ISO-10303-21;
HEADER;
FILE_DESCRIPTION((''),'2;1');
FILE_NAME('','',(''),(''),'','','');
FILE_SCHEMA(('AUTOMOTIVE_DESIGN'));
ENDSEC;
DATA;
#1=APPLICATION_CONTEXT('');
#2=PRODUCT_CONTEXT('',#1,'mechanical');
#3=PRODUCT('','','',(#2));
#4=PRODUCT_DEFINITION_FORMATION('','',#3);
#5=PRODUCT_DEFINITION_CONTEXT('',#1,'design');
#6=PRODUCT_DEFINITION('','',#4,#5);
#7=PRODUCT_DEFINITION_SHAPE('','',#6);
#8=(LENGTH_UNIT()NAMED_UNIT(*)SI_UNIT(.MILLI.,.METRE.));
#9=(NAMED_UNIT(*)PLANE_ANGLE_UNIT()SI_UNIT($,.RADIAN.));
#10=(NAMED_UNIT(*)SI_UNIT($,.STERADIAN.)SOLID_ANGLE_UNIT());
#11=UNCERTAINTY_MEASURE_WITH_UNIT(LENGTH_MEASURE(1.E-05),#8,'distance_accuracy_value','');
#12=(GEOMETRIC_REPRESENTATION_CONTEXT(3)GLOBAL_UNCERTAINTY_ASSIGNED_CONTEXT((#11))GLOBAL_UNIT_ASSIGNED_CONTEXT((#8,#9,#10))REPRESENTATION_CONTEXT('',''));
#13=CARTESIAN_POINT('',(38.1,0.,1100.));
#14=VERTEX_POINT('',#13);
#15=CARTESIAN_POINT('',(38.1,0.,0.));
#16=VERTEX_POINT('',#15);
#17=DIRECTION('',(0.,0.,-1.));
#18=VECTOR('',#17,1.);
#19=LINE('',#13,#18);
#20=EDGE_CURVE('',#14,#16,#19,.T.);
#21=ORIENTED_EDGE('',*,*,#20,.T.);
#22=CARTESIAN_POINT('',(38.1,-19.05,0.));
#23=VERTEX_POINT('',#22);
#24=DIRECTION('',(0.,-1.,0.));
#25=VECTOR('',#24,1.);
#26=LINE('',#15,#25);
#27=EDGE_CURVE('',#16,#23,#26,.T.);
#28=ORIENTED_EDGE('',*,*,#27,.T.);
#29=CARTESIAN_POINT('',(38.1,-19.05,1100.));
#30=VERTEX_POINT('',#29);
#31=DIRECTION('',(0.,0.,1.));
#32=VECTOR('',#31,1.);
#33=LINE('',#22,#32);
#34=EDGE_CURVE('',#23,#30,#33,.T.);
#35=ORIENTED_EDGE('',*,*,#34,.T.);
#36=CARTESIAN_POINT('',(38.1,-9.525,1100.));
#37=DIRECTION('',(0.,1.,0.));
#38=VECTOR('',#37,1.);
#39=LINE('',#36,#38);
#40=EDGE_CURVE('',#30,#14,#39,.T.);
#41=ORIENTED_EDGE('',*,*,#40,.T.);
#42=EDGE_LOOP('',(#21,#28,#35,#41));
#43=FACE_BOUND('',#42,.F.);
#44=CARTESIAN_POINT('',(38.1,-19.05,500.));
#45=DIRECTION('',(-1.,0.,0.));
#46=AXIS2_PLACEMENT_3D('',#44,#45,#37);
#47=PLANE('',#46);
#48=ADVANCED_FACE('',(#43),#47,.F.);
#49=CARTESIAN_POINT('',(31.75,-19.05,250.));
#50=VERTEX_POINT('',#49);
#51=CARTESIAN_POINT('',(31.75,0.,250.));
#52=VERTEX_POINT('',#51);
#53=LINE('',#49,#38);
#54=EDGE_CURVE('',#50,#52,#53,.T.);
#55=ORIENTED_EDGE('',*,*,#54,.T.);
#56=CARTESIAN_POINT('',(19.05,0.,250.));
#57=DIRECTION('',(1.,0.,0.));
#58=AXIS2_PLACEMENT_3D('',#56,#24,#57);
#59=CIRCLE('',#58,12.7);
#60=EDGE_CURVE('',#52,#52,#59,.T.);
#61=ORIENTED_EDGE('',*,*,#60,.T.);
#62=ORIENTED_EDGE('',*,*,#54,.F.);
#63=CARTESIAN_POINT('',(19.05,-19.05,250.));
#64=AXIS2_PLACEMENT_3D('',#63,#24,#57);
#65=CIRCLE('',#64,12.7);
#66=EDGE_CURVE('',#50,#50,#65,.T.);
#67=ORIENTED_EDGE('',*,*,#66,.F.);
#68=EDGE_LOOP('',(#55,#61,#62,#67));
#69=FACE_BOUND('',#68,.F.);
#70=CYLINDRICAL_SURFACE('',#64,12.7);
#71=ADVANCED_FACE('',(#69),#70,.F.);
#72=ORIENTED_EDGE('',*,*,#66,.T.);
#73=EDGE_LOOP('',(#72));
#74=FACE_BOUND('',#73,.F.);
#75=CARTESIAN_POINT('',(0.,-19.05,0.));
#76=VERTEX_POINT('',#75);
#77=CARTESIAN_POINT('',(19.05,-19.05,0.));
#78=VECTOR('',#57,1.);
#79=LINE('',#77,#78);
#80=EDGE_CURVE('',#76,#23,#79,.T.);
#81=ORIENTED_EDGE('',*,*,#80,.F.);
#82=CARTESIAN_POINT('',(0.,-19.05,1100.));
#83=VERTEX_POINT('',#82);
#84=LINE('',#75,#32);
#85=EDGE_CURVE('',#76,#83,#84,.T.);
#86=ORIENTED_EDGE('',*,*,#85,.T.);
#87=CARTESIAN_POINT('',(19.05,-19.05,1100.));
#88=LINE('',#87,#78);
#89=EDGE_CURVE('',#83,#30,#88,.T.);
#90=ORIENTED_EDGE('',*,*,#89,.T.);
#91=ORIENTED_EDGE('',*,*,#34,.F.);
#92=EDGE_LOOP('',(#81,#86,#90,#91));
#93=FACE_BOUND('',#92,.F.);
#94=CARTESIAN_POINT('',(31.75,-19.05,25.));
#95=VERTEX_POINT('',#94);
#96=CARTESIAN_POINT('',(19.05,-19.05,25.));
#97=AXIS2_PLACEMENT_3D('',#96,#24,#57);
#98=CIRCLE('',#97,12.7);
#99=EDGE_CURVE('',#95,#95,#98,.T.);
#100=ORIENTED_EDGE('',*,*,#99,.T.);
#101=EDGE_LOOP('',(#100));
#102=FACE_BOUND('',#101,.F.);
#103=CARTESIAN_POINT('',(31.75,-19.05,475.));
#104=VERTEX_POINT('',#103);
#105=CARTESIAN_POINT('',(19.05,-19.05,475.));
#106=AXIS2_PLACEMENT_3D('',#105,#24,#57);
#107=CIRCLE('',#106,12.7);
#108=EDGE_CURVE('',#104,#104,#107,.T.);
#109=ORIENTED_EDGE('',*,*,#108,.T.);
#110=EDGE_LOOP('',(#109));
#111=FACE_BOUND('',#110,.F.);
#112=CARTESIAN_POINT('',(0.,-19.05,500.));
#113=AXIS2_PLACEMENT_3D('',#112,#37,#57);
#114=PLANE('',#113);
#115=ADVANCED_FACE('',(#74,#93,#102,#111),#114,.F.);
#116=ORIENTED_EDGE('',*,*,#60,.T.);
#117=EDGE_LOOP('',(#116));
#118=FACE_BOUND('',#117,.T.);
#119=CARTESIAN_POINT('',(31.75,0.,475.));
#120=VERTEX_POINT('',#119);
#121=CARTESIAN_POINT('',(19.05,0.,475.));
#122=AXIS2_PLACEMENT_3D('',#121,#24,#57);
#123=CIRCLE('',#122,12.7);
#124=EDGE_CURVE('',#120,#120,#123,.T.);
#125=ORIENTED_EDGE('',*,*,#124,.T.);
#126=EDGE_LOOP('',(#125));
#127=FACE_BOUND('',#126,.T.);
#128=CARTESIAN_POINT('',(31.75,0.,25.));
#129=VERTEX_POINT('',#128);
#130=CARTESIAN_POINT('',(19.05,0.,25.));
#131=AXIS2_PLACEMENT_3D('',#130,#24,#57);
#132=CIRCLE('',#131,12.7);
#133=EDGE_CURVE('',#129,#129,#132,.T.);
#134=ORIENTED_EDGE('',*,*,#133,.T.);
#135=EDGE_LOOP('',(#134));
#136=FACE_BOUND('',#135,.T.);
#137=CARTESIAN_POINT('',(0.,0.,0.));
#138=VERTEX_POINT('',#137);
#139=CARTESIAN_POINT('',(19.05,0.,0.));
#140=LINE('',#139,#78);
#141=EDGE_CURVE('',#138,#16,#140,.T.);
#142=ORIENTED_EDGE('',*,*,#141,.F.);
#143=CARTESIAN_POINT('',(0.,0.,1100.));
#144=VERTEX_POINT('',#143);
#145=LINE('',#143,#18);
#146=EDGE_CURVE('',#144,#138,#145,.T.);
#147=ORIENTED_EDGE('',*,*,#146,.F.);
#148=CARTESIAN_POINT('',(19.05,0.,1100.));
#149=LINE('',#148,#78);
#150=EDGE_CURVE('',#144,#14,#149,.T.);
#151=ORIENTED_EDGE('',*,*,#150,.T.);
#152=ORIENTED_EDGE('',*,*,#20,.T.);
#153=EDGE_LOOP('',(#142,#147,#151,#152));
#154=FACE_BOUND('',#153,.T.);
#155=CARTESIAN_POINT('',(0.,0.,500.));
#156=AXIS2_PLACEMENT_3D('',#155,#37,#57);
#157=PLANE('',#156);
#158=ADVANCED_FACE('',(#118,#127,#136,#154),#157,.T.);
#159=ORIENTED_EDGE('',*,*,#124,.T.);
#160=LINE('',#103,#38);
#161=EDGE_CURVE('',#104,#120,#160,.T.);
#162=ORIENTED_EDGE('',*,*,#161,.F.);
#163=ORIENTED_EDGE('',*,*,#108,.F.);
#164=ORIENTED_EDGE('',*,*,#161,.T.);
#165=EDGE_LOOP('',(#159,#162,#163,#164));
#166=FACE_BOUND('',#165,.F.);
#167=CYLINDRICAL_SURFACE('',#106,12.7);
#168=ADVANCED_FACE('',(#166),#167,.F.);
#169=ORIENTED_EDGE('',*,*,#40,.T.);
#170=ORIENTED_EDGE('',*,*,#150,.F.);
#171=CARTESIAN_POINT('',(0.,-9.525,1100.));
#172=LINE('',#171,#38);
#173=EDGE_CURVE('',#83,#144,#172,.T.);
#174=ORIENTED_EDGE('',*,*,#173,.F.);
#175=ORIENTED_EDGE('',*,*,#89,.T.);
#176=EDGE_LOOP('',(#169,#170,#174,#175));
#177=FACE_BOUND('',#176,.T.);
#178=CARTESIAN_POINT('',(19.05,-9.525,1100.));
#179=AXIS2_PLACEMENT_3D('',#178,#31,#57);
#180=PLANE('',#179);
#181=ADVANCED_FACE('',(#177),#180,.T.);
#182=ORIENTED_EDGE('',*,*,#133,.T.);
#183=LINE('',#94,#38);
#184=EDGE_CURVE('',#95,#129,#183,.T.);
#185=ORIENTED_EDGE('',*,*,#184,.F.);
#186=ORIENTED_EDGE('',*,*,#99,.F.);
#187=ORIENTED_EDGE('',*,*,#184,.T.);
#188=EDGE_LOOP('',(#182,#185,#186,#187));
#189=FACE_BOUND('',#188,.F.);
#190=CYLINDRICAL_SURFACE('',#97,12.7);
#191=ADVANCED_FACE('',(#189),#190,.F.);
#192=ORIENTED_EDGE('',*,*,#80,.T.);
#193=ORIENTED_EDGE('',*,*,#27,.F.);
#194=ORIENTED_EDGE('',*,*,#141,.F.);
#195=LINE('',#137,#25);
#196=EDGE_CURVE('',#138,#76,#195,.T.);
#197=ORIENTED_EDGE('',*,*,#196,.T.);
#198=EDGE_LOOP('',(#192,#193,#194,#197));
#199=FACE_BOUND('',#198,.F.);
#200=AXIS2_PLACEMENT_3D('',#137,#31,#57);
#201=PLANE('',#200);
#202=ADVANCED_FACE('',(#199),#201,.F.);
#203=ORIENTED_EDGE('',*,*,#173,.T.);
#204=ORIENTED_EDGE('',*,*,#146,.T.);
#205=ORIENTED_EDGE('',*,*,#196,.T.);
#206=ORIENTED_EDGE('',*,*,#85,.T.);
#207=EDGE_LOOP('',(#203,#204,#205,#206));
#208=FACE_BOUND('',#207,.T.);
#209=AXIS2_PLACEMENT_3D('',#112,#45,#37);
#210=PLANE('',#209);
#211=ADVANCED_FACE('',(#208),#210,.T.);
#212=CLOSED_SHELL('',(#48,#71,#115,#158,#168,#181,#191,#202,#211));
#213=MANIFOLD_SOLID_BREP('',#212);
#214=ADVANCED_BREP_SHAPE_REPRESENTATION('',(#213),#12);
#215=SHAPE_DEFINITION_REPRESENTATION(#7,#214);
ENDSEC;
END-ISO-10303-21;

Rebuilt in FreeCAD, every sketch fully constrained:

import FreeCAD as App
import Part
import Sketcher
from FreeCAD import Vector
Q = App.Units.Quantity

doc = App.newDocument("Part")
body = doc.addObject("PartDesign::Body", "Body")

sketch1 = body.newObject("Sketcher::SketchObject", "Sketch")
sketch1.AttachmentSupport = (doc.getObject("XZ_Plane"), [""])
sketch1.MapMode = "FlatFace"
sketch1.addGeometry(Part.LineSegment(Vector(0, 500, 0), Vector(0, 0, 0)), False)
sketch1.addGeometry(Part.LineSegment(Vector(0, 0, 0), Vector(38, 0, 0)), False)
sketch1.addGeometry(Part.LineSegment(Vector(38, 0, 0), Vector(38, 500, 0)), False)
sketch1.addGeometry(Part.LineSegment(Vector(38, 500, 0), Vector(0, 500, 0)), False)
sketch1.addConstraint(Sketcher.Constraint("Coincident", 0, 2, 1, 1))
sketch1.addConstraint(Sketcher.Constraint("Coincident", 1, 2, 2, 1))
sketch1.addConstraint(Sketcher.Constraint("Coincident", 2, 2, 3, 1))
sketch1.addConstraint(Sketcher.Constraint("Coincident", 3, 2, 0, 1))
sketch1.addConstraint(Sketcher.Constraint("Vertical", 0))
sketch1.addConstraint(Sketcher.Constraint("Horizontal", 1))
sketch1.addConstraint(Sketcher.Constraint("Vertical", 2))
sketch1.addConstraint(Sketcher.Constraint("Horizontal", 3))
sketch1.addConstraint(Sketcher.Constraint("Coincident", 0, 2, -1, 1))
sketch1.addConstraint(Sketcher.Constraint("DistanceY", 0, 2, 0, 1, Q("500 mm")))
sketch1.addConstraint(Sketcher.Constraint("DistanceX", 1, 1, 1, 2, Q("38.1 mm")))
pad1 = body.newObject("PartDesign::Pad", "Pad")
pad1.Profile = sketch1
pad1.Length = 19.05

sketch2 = body.newObject("Sketcher::SketchObject", "Sketch001")
sketch2.AttachmentSupport = (doc.getObject("XZ_Plane"), [""])
sketch2.MapMode = "FlatFace"
sketch2.AttachmentOffset = App.Placement(Vector(0, 0, 19.05), App.Rotation())
sketch2.addGeometry(Part.Circle(Vector(19, 475, 0), Vector(0, 0, 1), 13), False)
sketch2.addGeometry(Part.Circle(Vector(19, 25, 0), Vector(0, 0, 1), 13), False)
sketch2.addConstraint(Sketcher.Constraint("Equal", 0, 1))
sketch2.addConstraint(Sketcher.Constraint("Vertical", 0, 3, 1, 3))
sketch2.addConstraint(Sketcher.Constraint("Diameter", 0, Q("25.4 mm")))
sketch2.addConstraint(Sketcher.Constraint("DistanceY", -1, 1, 0, 3, Q("475 mm")))
sketch2.addConstraint(Sketcher.Constraint("DistanceY", -1, 1, 1, 3, Q("25 mm")))
sketch2.addConstraint(Sketcher.Constraint("DistanceX", -1, 1, 0, 3, Q("19.05 mm")))
pocket1 = body.newObject("PartDesign::Pocket", "Pocket")
pocket1.Profile = sketch2
pocket1.Length = 25

sketch3 = body.newObject("Sketcher::SketchObject", "Sketch002")
sketch3.AttachmentSupport = (doc.getObject("XZ_Plane"), [""])
sketch3.MapMode = "FlatFace"
sketch3.AttachmentOffset = App.Placement(Vector(0, 0, 19.05), App.Rotation())
sketch3.addGeometry(Part.Circle(Vector(19, 250, 0), Vector(0, 0, 1), 13), False)
sketch3.addConstraint(Sketcher.Constraint("Diameter", 0, Q("25.4 mm")))
sketch3.addConstraint(Sketcher.Constraint("DistanceY", -1, 1, 0, 3, Q("250 mm")))
sketch3.addConstraint(Sketcher.Constraint("DistanceX", -1, 1, 0, 3, Q("19.05 mm")))
pocket2 = body.newObject("PartDesign::Pocket", "Pocket001")
pocket2.Profile = sketch3
pocket2.Length = 25

sketch4 = body.newObject("Sketcher::SketchObject", "Sketch003")
sketch4.AttachmentSupport = (doc.getObject("XY_Plane"), [""])
sketch4.MapMode = "FlatFace"
sketch4.AttachmentOffset = App.Placement(Vector(0, 0, 500), App.Rotation())
sketch4.addGeometry(Part.LineSegment(Vector(0, 0, 0), Vector(0, -19, 0)), False)
sketch4.addGeometry(Part.LineSegment(Vector(0, -19, 0), Vector(38, -19, 0)), False)
sketch4.addGeometry(Part.LineSegment(Vector(38, -19, 0), Vector(38, 0, 0)), False)
sketch4.addGeometry(Part.LineSegment(Vector(38, 0, 0), Vector(0, 0, 0)), False)
sketch4.addConstraint(Sketcher.Constraint("Coincident", 0, 2, 1, 1))
sketch4.addConstraint(Sketcher.Constraint("Coincident", 1, 2, 2, 1))
sketch4.addConstraint(Sketcher.Constraint("Coincident", 2, 2, 3, 1))
sketch4.addConstraint(Sketcher.Constraint("Coincident", 3, 2, 0, 1))
sketch4.addConstraint(Sketcher.Constraint("Vertical", 0))
sketch4.addConstraint(Sketcher.Constraint("Horizontal", 1))
sketch4.addConstraint(Sketcher.Constraint("Vertical", 2))
sketch4.addConstraint(Sketcher.Constraint("Horizontal", 3))
sketch4.addConstraint(Sketcher.Constraint("Coincident", 3, 2, -1, 1))
sketch4.addConstraint(Sketcher.Constraint("DistanceX", 1, 1, 1, 2, Q("38.1 mm")))
sketch4.addConstraint(Sketcher.Constraint("DistanceY", 0, 2, 0, 1, Q("19.05 mm")))
pad2 = body.newObject("PartDesign::Pad", "Pad001")
pad2.Profile = sketch4
pad2.Length = 600

doc.recompute()
